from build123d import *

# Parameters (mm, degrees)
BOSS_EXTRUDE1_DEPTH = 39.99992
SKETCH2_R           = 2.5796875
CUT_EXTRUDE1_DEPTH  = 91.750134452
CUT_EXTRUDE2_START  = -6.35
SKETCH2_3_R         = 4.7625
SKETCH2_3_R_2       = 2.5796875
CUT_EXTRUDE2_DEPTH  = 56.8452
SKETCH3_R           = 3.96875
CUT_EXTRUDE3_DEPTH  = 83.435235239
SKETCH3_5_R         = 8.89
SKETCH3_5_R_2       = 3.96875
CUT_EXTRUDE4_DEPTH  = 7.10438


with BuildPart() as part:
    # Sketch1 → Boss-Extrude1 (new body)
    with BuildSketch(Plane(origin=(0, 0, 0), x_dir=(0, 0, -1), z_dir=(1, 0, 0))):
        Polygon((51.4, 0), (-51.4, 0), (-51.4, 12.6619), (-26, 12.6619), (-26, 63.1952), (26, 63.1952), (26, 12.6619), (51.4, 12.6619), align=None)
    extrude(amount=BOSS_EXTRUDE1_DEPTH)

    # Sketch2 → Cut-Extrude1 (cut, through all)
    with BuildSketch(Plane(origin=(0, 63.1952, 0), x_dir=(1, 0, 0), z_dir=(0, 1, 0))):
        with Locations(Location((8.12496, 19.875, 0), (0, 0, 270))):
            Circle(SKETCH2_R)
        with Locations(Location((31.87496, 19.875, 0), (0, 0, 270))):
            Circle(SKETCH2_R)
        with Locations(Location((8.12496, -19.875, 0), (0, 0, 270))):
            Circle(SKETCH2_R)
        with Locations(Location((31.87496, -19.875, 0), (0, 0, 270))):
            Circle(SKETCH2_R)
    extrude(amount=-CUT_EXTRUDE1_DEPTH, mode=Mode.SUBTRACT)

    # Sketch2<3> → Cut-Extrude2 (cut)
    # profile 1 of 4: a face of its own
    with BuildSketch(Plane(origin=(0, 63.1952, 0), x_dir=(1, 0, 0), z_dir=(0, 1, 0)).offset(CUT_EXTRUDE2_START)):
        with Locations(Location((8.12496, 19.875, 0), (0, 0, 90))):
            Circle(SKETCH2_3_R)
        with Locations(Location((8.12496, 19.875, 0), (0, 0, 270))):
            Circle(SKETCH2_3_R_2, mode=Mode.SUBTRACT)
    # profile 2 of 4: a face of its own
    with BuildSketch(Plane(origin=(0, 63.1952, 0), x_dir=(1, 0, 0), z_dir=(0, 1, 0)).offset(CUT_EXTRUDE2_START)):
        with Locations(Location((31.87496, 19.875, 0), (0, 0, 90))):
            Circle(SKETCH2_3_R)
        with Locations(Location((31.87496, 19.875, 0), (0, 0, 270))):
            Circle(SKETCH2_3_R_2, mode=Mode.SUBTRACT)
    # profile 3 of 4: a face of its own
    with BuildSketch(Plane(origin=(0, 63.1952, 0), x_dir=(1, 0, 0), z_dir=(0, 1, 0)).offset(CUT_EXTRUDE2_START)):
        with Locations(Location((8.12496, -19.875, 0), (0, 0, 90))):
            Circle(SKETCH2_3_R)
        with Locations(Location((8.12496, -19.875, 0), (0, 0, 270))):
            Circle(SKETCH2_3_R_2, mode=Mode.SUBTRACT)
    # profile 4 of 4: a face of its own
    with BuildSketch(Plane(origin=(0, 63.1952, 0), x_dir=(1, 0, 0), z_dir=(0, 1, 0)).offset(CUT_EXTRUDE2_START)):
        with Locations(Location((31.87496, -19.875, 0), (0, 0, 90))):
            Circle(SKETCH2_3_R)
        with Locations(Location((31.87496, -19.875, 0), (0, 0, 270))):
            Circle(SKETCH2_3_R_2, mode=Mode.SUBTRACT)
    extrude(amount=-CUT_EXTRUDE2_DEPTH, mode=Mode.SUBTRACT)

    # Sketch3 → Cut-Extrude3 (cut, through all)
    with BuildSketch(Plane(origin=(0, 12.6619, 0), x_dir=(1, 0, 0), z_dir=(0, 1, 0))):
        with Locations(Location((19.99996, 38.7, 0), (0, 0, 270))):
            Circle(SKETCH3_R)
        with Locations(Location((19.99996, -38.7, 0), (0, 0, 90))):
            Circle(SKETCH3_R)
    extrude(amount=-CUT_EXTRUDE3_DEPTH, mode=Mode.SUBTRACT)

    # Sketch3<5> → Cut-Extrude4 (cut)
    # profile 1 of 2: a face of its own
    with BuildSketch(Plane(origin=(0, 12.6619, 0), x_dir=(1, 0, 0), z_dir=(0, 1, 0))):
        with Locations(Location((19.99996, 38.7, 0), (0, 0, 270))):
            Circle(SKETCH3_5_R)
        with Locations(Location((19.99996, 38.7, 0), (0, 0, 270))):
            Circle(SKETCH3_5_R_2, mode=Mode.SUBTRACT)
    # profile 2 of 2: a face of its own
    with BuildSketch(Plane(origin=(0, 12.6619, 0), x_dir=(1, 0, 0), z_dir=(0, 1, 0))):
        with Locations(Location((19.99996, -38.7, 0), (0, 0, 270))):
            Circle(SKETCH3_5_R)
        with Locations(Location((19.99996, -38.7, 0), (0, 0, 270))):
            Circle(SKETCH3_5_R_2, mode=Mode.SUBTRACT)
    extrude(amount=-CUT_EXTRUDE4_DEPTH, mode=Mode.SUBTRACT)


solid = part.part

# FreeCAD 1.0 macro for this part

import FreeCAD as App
import Part
import Sketcher
from FreeCAD import Vector
Q = App.Units.Quantity

doc = App.newDocument("Part")
body = doc.addObject("PartDesign::Body", "Body")

# Sketch on YZ plane
sketch1 = doc.addObject("Sketcher::SketchObject", "Sketch")
body.addObject(sketch1)
sketch1.AttachmentSupport = (doc.YZ_Plane, [""])
sketch1.MapMode = "FlatFace"
sketch1.addGeometry([
    Part.LineSegment(Vector(0, 51.4, 0), Vector(0, -51.4, 0)),  # 0
    Part.LineSegment(Vector(0, -51.4, 0), Vector(12.6619, -51.4, 0)),  # 1
    Part.LineSegment(Vector(12.6619, -51.4, 0), Vector(12.6619, -26, 0)),  # 2
    Part.LineSegment(Vector(12.6619, -26, 0), Vector(63.1952, -26, 0)),  # 3
    Part.LineSegment(Vector(63.1952, -26, 0), Vector(63.1952, 26, 0)),  # 4
    Part.LineSegment(Vector(63.1952, 26, 0), Vector(12.6619, 26, 0)),  # 5
    Part.LineSegment(Vector(12.6619, 26, 0), Vector(12.6619, 51.4, 0)),  # 6
    Part.LineSegment(Vector(12.6619, 51.4, 0), Vector(0, 51.4, 0)),  # 7
], False)
sketch1.addConstraint([
    Sketcher.Constraint("Coincident", 0, 2, 1, 1),
    Sketcher.Constraint("Coincident", 1, 2, 2, 1),
    Sketcher.Constraint("Coincident", 2, 2, 3, 1),
    Sketcher.Constraint("Coincident", 3, 2, 4, 1),
    Sketcher.Constraint("Coincident", 4, 2, 5, 1),
    Sketcher.Constraint("Coincident", 5, 2, 6, 1),
    Sketcher.Constraint("Coincident", 6, 2, 7, 1),
    Sketcher.Constraint("Coincident", 7, 2, 0, 1),
    Sketcher.Constraint("Vertical", 0),
    Sketcher.Constraint("Horizontal", 1),
    Sketcher.Constraint("Vertical", 2),
    Sketcher.Constraint("Horizontal", 3),
    Sketcher.Constraint("Vertical", 4),
    Sketcher.Constraint("Horizontal", 5),
    Sketcher.Constraint("Vertical", 6),
    Sketcher.Constraint("Horizontal", 7),
    Sketcher.Constraint("Symmetric", 0, 2, 7, 2, -1, 1),
    Sketcher.Constraint("Symmetric", 2, 2, 5, 2, -1),
    Sketcher.Constraint("DistanceY", 2, 1, 2, 2, Q("1 in")),
    Sketcher.Constraint("DistanceX", 1, 1, 1, 2, Q("0.4985 in")),
    Sketcher.Constraint("DistanceX", 3, 1, 3, 2, Q("1.9895 in")),
    Sketcher.Constraint("DistanceY", 0, 2, 0, 1, 102.8),
])
pad1 = doc.addObject("PartDesign::Pad", "Pad")
body.addObject(pad1)
pad1.Profile = sketch1
pad1.Length = Q("1.5748 in")

# Sketch on XZ plane
sketch2 = doc.addObject("Sketcher::SketchObject", "Sketch001")
body.addObject(sketch2)
sketch2.AttachmentSupport = (doc.XZ_Plane, [""])
sketch2.MapMode = "FlatFace"
sketch2.AttachmentOffset = App.Placement(Vector(0, 0, -2.488 * 25.4), App.Rotation())
sketch2.addGeometry([
    Part.Circle(Vector(8.12496, -19.875, 0), Vector(0, 0, 1), 2.579687),
    Part.Circle(Vector(31.87496, -19.875, 0), Vector(0, 0, 1), 2.579687),
    Part.Circle(Vector(8.12496, 19.875, 0), Vector(0, 0, 1), 2.579687),
    Part.Circle(Vector(31.87496, 19.875, 0), Vector(0, 0, 1), 2.579687),
], False)
sketch2.addConstraint([
    Sketcher.Constraint("Equal", 0, 1),
    Sketcher.Constraint("Equal", 1, 2),
    Sketcher.Constraint("Equal", 2, 3),
    Sketcher.Constraint("Symmetric", 0, 3, 2, 3, -1),
    Sketcher.Constraint("Symmetric", 1, 3, 3, 3, -1),
    Sketcher.Constraint("Horizontal", 0, 3, 1, 3),
    Sketcher.Constraint("Diameter", 0, Q("0.203125 in")),
    Sketcher.Constraint("DistanceY", 0, 3, -1, 1, 19.875),
    Sketcher.Constraint("DistanceX", 0, 3, 1, 3, 23.75),
    Sketcher.Constraint("DistanceX", -1, 1, 0, 3, 8.12496),
])
pocket1 = doc.addObject("PartDesign::Pocket", "Pocket")
body.addObject(pocket1)
pocket1.Profile = sketch2
pocket1.Type = "ThroughAll"
pocket1.Reversed = True

# Sketch on XZ plane
sketch3 = doc.addObject("Sketcher::SketchObject", "Sketch002")
body.addObject(sketch3)
sketch3.AttachmentSupport = (doc.XZ_Plane, [""])
sketch3.MapMode = "FlatFace"
sketch3.AttachmentOffset = App.Placement(Vector(0, 0, -2.238 * 25.4), App.Rotation())
sketch3.addGeometry([
    Part.Circle(Vector(8.12496, -19.875, 0), Vector(0, 0, 1), 4.7625),  # 0
    Part.Circle(Vector(8.12496, -19.875, 0), Vector(0, 0, 1), 2.579687),  # 1
    Part.Circle(Vector(31.87496, -19.875, 0), Vector(0, 0, 1), 4.7625),  # 2
    Part.Circle(Vector(31.87496, -19.875, 0), Vector(0, 0, 1), 2.579687),  # 3
    Part.Circle(Vector(8.12496, 19.875, 0), Vector(0, 0, 1), 4.7625),  # 4
    Part.Circle(Vector(8.12496, 19.875, 0), Vector(0, 0, 1), 2.579687),  # 5
    Part.Circle(Vector(31.87496, 19.875, 0), Vector(0, 0, 1), 4.7625),  # 6
    Part.Circle(Vector(31.87496, 19.875, 0), Vector(0, 0, 1), 2.579687),  # 7
], False)
sketch3.addConstraint([
    Sketcher.Constraint("Coincident", 1, 3, 0, 3),
    Sketcher.Constraint("Coincident", 3, 3, 2, 3),
    Sketcher.Constraint("Coincident", 5, 3, 4, 3),
    Sketcher.Constraint("Coincident", 7, 3, 6, 3),
    Sketcher.Constraint("Equal", 0, 2),
    Sketcher.Constraint("Equal", 1, 3),
    Sketcher.Constraint("Equal", 2, 4),
    Sketcher.Constraint("Equal", 3, 5),
    Sketcher.Constraint("Equal", 4, 6),
    Sketcher.Constraint("Equal", 5, 7),
    Sketcher.Constraint("Symmetric", 0, 3, 4, 3, -1),
    Sketcher.Constraint("Symmetric", 2, 3, 6, 3, -1),
    Sketcher.Constraint("Horizontal", 1, 3, 2, 3),
    Sketcher.Constraint("Diameter", 0, Q("0.375 in")),
    Sketcher.Constraint("Diameter", 1, Q("0.203125 in")),
    Sketcher.Constraint("DistanceY", 0, 3, -1, 1, 19.875),
    Sketcher.Constraint("DistanceX", 0, 3, 2, 3, 23.75),
    Sketcher.Constraint("DistanceX", -1, 1, 0, 3, 8.12496),
])
pocket2 = doc.addObject("PartDesign::Pocket", "Pocket001")
body.addObject(pocket2)
pocket2.Profile = sketch3
pocket2.Length = Q("2.238 in")
pocket2.Reversed = True

# Sketch on XZ plane
sketch4 = doc.addObject("Sketcher::SketchObject", "Sketch003")
body.addObject(sketch4)
sketch4.AttachmentSupport = (doc.XZ_Plane, [""])
sketch4.MapMode = "FlatFace"
sketch4.AttachmentOffset = App.Placement(Vector(0, 0, -0.4985 * 25.4), App.Rotation())
sketch4.addGeometry([
    Part.Circle(Vector(19.99996, -38.7, 0), Vector(0, 0, 1), 3.96875),
    Part.Circle(Vector(19.99996, 38.7, 0), Vector(0, 0, 1), 3.96875),
], False)
sketch4.addConstraint([
    Sketcher.Constraint("Equal", 0, 1),
    Sketcher.Constraint("Symmetric", 0, 3, 1, 3, -1),
    Sketcher.Constraint("Diameter", 0, Q("0.3125 in")),
    Sketcher.Constraint("DistanceX", -1, 1, 0, 3, Q("0.7874 in")),
    Sketcher.Constraint("DistanceY", 0, 3, -1, 1, 38.7),
])
pocket3 = doc.addObject("PartDesign::Pocket", "Pocket002")
body.addObject(pocket3)
pocket3.Profile = sketch4
pocket3.Type = "ThroughAll"
pocket3.Reversed = True

# Sketch on XZ plane
sketch5 = doc.addObject("Sketcher::SketchObject", "Sketch004")
body.addObject(sketch5)
sketch5.AttachmentSupport = (doc.XZ_Plane, [""])
sketch5.MapMode = "FlatFace"
sketch5.AttachmentOffset = App.Placement(Vector(0, 0, -0.4985 * 25.4), App.Rotation())
sketch5.addGeometry([
    Part.Circle(Vector(19.99996, -38.7, 0), Vector(0, 0, 1), 8.89),
    Part.Circle(Vector(19.99996, -38.7, 0), Vector(0, 0, 1), 3.96875),
    Part.Circle(Vector(19.99996, 38.7, 0), Vector(0, 0, 1), 8.89),
    Part.Circle(Vector(19.99996, 38.7, 0), Vector(0, 0, 1), 3.96875),
], False)
sketch5.addConstraint([
    Sketcher.Constraint("Coincident", 1, 3, 0, 3),
    Sketcher.Constraint("Coincident", 3, 3, 2, 3),
    Sketcher.Constraint("Equal", 0, 2),
    Sketcher.Constraint("Equal", 1, 3),
    Sketcher.Constraint("Symmetric", 0, 3, 2, 3, -1),
    Sketcher.Constraint("Diameter", 0, Q("0.7 in")),
    Sketcher.Constraint("Diameter", 1, Q("0.3125 in")),
    Sketcher.Constraint("DistanceX", -1, 1, 0, 3, Q("0.7874 in")),
    Sketcher.Constraint("DistanceY", 0, 3, -1, 1, 38.7),
])
pocket4 = doc.addObject("PartDesign::Pocket", "Pocket003")
body.addObject(pocket4)
pocket4.Profile = sketch5
pocket4.Length = Q("0.2797 in")
pocket4.Reversed = True

doc.recompute()
